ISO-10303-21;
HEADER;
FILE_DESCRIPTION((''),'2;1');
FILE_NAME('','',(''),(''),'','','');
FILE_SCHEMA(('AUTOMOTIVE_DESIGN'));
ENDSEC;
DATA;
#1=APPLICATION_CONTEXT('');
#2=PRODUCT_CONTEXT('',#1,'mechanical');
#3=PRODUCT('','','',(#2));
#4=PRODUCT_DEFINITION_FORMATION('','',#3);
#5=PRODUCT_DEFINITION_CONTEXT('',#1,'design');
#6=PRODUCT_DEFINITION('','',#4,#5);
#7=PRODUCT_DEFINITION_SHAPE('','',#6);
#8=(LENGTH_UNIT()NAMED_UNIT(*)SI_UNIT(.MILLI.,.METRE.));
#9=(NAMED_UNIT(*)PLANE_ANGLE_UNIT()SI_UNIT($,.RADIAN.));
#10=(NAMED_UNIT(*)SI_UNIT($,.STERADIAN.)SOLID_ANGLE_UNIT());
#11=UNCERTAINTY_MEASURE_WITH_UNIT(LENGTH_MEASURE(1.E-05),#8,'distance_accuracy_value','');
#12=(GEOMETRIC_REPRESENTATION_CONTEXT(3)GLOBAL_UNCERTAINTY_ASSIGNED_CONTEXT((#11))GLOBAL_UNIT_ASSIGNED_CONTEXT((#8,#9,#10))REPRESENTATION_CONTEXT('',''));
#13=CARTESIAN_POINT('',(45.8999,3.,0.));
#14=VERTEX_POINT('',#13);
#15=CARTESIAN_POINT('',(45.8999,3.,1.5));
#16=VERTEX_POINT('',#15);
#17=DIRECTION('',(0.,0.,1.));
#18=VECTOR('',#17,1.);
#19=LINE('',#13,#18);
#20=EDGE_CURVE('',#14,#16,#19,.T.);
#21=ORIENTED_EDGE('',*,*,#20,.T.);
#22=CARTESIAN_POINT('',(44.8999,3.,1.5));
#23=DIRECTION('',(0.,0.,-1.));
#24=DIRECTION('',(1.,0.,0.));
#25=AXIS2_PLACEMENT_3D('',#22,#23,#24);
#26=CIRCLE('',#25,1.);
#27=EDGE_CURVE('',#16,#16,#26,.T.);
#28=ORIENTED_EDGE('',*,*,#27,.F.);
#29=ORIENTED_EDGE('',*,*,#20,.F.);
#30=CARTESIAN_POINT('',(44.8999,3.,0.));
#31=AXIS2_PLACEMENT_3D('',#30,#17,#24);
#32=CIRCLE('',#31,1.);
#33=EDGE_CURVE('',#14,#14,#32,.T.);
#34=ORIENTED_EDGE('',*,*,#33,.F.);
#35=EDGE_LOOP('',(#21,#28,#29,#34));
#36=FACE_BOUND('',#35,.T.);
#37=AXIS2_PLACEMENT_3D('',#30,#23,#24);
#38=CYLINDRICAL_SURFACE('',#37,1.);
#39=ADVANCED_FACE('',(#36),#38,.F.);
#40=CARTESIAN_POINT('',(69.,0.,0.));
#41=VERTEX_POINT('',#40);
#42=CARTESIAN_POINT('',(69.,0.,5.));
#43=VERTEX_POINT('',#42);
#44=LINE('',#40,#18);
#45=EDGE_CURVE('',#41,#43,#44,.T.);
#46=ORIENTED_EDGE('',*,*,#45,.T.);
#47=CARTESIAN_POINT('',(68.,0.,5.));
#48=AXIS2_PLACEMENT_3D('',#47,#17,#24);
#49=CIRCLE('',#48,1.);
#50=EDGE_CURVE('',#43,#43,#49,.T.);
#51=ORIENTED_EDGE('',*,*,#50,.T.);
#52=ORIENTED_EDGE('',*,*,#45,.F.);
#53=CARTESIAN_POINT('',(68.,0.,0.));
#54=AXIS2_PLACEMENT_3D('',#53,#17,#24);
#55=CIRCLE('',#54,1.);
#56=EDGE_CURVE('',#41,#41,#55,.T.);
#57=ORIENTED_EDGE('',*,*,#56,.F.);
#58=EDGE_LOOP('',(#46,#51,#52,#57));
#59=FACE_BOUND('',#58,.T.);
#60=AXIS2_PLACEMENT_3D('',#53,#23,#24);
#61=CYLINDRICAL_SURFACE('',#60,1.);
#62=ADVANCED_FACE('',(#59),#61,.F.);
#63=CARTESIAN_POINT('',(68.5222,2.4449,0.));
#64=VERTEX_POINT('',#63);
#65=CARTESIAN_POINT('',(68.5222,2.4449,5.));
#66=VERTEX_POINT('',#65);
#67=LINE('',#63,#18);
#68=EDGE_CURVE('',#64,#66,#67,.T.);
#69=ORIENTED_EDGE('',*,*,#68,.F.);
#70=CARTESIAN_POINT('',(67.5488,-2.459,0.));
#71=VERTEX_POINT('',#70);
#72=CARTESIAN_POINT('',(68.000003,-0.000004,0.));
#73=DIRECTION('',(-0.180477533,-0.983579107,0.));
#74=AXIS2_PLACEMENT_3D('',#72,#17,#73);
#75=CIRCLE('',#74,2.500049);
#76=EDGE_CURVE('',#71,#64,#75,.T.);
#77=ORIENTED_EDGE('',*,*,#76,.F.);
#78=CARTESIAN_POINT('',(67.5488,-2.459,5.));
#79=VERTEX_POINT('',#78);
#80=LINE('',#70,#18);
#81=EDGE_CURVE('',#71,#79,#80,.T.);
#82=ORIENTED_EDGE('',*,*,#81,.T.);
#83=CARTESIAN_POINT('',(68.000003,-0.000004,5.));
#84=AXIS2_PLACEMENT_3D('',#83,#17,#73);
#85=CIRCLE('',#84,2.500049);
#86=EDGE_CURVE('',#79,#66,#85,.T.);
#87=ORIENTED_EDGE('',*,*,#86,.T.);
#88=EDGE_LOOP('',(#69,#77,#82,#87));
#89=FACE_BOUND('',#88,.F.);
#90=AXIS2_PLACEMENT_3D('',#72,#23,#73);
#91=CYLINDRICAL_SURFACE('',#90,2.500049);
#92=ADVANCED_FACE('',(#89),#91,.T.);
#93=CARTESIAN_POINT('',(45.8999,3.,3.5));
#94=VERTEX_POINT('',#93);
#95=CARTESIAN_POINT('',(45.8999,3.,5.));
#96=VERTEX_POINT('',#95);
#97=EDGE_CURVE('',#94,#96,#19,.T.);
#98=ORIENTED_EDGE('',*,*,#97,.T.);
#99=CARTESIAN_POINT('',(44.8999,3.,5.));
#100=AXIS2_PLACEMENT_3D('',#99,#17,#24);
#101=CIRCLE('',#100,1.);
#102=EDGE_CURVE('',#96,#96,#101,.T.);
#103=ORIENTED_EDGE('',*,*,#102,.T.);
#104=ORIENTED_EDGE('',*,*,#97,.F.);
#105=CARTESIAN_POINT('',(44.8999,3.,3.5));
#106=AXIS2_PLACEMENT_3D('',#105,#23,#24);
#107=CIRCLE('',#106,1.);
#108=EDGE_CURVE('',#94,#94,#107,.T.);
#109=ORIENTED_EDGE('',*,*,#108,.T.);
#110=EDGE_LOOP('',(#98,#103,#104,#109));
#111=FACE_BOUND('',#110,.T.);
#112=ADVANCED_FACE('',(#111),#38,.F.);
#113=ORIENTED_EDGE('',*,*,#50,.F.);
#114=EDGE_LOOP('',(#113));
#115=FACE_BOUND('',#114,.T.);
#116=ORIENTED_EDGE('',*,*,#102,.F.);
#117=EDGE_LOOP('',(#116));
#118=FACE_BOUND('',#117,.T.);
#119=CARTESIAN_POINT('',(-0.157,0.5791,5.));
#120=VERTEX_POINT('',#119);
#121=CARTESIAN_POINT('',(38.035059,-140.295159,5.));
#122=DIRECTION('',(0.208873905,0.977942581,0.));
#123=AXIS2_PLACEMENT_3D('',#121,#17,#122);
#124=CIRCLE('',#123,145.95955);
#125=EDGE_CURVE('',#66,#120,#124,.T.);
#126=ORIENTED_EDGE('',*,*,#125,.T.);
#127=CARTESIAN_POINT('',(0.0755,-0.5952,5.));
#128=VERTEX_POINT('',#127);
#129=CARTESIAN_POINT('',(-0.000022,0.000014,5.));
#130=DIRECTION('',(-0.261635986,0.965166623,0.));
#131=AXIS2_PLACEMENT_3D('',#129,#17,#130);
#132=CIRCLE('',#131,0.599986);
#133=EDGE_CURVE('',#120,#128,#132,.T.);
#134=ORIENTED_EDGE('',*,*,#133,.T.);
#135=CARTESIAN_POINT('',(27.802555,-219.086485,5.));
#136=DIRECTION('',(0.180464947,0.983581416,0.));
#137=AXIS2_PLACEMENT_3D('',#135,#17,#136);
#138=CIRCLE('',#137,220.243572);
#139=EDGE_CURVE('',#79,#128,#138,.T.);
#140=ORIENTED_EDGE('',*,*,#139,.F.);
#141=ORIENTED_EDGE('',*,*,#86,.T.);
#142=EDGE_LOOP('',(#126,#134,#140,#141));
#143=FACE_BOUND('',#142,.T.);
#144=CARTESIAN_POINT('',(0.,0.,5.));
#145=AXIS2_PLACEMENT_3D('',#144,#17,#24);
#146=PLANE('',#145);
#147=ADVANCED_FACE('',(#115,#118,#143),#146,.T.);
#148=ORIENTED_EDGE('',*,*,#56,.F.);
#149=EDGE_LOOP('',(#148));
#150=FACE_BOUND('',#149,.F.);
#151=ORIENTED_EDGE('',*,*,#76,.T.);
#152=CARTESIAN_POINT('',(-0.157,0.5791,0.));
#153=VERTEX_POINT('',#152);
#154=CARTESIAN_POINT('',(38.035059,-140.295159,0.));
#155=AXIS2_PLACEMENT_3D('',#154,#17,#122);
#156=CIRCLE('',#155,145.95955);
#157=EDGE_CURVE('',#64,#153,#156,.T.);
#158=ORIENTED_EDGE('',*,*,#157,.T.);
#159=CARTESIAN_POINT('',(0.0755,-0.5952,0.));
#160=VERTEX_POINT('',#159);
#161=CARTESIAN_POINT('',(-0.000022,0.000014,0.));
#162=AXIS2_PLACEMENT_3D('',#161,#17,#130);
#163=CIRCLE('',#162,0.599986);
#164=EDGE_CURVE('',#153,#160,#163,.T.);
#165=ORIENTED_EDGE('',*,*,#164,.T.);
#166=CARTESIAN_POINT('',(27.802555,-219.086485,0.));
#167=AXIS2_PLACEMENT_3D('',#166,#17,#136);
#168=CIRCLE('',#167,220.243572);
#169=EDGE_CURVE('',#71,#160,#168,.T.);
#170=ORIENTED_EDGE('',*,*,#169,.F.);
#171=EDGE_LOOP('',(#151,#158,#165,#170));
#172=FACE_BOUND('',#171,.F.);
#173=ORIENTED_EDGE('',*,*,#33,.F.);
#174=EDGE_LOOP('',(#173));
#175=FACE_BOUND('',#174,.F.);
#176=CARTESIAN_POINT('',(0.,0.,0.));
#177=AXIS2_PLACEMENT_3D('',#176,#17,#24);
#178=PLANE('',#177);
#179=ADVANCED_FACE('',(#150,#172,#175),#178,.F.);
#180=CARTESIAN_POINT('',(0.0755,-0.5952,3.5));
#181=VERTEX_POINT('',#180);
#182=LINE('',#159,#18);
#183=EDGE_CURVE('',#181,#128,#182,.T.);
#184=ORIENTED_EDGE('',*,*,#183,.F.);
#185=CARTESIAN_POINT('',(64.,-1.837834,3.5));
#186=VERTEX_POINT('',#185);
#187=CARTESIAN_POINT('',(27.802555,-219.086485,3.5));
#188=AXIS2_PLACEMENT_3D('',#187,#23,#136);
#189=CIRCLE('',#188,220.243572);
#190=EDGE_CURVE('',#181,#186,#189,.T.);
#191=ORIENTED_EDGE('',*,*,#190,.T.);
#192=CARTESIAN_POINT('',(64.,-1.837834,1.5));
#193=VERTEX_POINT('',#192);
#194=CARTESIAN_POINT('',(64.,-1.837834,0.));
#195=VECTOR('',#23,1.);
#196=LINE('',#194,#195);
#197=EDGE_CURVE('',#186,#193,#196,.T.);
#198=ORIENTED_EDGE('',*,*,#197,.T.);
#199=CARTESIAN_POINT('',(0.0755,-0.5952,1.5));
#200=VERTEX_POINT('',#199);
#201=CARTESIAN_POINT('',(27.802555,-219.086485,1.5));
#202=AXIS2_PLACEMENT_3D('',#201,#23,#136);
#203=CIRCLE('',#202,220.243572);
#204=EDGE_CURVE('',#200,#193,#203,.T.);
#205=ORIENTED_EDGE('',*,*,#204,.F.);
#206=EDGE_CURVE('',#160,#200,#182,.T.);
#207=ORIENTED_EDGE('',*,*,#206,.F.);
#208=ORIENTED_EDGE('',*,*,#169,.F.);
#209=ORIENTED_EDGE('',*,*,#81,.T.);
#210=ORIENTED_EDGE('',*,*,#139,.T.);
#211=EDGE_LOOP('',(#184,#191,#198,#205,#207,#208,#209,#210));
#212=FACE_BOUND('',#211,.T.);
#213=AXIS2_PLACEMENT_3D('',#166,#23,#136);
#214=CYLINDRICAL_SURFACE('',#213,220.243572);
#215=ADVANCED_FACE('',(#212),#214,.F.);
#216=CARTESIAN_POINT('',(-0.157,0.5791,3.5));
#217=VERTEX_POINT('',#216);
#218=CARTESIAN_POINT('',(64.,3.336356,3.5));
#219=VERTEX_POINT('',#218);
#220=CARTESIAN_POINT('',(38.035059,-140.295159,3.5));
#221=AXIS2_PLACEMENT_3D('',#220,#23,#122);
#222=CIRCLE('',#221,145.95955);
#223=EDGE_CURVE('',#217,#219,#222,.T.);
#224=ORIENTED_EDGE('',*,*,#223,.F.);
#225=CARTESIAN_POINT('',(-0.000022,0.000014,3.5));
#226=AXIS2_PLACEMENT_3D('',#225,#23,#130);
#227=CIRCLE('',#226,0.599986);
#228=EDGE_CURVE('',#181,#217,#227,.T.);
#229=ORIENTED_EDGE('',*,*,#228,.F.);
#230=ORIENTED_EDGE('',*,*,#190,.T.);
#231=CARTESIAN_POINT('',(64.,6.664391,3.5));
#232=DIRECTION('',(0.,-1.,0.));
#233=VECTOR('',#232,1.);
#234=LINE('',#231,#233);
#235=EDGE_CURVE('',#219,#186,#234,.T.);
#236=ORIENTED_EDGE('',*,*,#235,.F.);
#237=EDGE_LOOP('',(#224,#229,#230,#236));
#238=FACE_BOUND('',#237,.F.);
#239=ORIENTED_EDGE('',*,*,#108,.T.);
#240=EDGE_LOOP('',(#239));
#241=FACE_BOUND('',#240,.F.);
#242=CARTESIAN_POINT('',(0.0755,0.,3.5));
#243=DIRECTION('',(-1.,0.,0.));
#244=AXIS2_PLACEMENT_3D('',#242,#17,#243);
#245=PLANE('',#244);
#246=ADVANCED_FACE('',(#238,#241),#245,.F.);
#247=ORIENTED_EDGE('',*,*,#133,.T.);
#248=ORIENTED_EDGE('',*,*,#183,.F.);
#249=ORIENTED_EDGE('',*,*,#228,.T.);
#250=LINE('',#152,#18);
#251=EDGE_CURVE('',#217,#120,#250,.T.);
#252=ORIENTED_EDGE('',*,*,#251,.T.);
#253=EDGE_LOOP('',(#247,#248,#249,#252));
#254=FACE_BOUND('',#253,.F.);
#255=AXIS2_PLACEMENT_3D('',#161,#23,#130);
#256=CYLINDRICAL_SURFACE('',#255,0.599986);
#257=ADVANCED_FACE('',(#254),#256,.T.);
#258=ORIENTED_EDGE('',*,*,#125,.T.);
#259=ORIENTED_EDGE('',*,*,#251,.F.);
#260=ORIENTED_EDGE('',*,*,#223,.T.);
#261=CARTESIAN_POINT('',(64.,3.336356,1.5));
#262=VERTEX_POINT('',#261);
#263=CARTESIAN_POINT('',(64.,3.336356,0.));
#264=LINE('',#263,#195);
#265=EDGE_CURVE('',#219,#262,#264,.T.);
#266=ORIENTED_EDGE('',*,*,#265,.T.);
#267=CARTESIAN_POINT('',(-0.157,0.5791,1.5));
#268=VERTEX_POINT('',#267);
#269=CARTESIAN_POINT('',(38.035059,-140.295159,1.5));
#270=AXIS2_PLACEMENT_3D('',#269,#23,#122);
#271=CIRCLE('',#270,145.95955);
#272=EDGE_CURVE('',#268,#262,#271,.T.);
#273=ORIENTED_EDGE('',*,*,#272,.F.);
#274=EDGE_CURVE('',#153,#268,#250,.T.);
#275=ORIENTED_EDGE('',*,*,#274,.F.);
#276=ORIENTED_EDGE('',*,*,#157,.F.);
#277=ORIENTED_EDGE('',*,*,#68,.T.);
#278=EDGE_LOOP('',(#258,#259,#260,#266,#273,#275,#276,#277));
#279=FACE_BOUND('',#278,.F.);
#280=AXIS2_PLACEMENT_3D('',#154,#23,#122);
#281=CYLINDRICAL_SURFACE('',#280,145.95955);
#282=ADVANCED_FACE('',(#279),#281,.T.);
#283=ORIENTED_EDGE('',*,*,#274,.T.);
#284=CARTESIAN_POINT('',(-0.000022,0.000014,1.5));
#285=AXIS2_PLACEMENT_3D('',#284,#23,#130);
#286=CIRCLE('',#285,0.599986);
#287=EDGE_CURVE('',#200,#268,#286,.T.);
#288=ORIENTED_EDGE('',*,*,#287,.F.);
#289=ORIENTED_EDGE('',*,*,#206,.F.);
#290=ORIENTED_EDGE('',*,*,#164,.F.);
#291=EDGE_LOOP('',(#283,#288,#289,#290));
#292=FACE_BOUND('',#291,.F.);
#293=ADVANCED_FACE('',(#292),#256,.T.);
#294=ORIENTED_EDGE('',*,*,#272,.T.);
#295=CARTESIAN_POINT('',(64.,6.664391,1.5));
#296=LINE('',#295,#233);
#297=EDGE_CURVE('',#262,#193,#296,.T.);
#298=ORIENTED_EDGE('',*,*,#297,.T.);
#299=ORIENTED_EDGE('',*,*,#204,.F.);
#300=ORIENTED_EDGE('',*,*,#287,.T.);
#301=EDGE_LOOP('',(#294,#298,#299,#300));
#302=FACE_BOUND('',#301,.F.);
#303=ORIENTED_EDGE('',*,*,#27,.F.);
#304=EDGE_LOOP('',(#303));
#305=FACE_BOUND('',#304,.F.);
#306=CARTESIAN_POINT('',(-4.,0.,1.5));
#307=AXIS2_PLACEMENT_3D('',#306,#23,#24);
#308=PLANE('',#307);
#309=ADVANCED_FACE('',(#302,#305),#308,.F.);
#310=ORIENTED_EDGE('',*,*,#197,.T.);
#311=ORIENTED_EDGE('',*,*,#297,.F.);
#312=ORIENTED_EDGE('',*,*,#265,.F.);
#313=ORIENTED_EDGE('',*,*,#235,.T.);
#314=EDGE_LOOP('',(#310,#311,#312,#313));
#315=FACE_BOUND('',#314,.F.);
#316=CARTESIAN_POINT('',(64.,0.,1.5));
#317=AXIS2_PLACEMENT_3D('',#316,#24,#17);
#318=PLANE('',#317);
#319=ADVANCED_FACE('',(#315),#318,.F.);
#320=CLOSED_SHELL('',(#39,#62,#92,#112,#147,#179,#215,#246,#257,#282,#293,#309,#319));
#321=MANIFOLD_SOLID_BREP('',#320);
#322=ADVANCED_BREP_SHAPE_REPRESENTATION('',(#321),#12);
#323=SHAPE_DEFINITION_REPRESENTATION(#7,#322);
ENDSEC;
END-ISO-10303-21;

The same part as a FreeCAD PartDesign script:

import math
import FreeCAD as App
import Part
import Sketcher

V = App.Vector


def add_polygon(sketch, points):
    """Adds a closed chain of lines whose ends are joined by coincident constraints."""
    first, n = sketch.GeometryCount, len(points)
    for a, b in zip(points, points[1:] + points[:1]):
        sketch.addGeometry(Part.LineSegment(App.Vector(*a, 0), App.Vector(*b, 0)), False)
    for i in range(n):
        sketch.addConstraint(Sketcher.Constraint("Coincident", first + i, 2, first + (i + 1) % n, 1))

doc = App.newDocument("Part")
body = doc.addObject("PartDesign::Body", "Body")

# Sketch on XY plane
sketch1 = doc.addObject("Sketcher::SketchObject", "Sketch")
body.addObject(sketch1)
sketch1.AttachmentSupport = (doc.XY_Plane, [""])
sketch1.MapMode = "FlatFace"
sketch1.addGeometry([
    Part.ArcOfCircle(Part.Circle(V(38.035, -140.2958, 0), V(0, 0, 1), 145.960189), math.radians(77.943662), math.radians(105.16861)),  # 0
    Part.ArcOfCircle(Part.Circle(V(0, 0, 0), V(0, 0, 1), 0.600005), math.radians(105.168854), math.radians(277.229253)),  # 1
    Part.ArcOfCircle(Part.Circle(V(27.802555, -219.086485, 0), V(0, 0, 1), 220.243572), math.radians(79.603157), math.radians(97.23231)),  # 2
    Part.ArcOfCircle(Part.Circle(V(68, 0, 0), V(0, 0, 1), 2.500052), math.radians(-100.397499), math.radians(77.943499)),  # 3
    Part.Circle(V(68, 0, 0), V(0, 0, 1), 1),  # 4
    Part.Circle(V(44.8999, 3, 0), V(0, 0, 1), 1),  # 5
], False)
sketch1.addConstraint([
    Sketcher.Constraint("Tangent", 0, 2, 1, 1),
    Sketcher.Constraint("Tangent", 1, 2, 2, 2),
    Sketcher.Constraint("Tangent", 2, 1, 3, 1),
    Sketcher.Constraint("Tangent", 3, 2, 0, 1),
    Sketcher.Constraint("Coincident", 1, 3, -1, 1),
    Sketcher.Constraint("Coincident", 4, 3, 3, 3),
    Sketcher.Constraint("Equal", 4, 5),
    Sketcher.Constraint("PointOnObject", 3, 3, -1),
    Sketcher.Constraint("Diameter", 4, 2.0),
    Sketcher.Constraint("Radius", 1, 0.6),
    Sketcher.Constraint("Radius", 3, 2.5),
    Sketcher.Constraint("DistanceX", -1, 1, 3, 3, 68.0),
    Sketcher.Constraint("DistanceY", -1, 1, 5, 3, 3.0),
    Sketcher.Constraint("DistanceX", -1, 1, 5, 3, 44.9),
    Sketcher.Constraint("Radius", 0, 145.9602),
    Sketcher.Constraint("Radius", 2, 220.2436),
])
pad1 = doc.addObject("PartDesign::Pad", "Pad")
body.addObject(pad1)
pad1.Profile = sketch1
pad1.Length = 5

# Sketch on XZ plane
sketch2 = doc.addObject("Sketcher::SketchObject", "Sketch001")
body.addObject(sketch2)
sketch2.AttachmentSupport = (doc.XZ_Plane, [""])
sketch2.MapMode = "FlatFace"
add_polygon(sketch2, [(-4, 1.5), (-4, 3.5), (64, 3.5), (64, 1.5)])  # lines 0-3
sketch2.addConstraint([
    Sketcher.Constraint("Vertical", 0),
    Sketcher.Constraint("Horizontal", 1),
    Sketcher.Constraint("Vertical", 2),
    Sketcher.Constraint("Horizontal", 3),
    Sketcher.Constraint("DistanceX", 1, 1, 1, 2, 68.0),
    Sketcher.Constraint("DistanceY", 0, 1, 0, 2, 2.0),
    Sketcher.Constraint("DistanceX", 0, 2, -1, 1, 4.0),
    Sketcher.Constraint("DistanceY", -1, 1, 2, 2, 1.5),
])
pocket1 = doc.addObject("PartDesign::Pocket", "Pocket")
body.addObject(pocket1)
pocket1.Profile = sketch2
pocket1.Type = "ThroughAll"
pocket1.Midplane = True

doc.recompute()
